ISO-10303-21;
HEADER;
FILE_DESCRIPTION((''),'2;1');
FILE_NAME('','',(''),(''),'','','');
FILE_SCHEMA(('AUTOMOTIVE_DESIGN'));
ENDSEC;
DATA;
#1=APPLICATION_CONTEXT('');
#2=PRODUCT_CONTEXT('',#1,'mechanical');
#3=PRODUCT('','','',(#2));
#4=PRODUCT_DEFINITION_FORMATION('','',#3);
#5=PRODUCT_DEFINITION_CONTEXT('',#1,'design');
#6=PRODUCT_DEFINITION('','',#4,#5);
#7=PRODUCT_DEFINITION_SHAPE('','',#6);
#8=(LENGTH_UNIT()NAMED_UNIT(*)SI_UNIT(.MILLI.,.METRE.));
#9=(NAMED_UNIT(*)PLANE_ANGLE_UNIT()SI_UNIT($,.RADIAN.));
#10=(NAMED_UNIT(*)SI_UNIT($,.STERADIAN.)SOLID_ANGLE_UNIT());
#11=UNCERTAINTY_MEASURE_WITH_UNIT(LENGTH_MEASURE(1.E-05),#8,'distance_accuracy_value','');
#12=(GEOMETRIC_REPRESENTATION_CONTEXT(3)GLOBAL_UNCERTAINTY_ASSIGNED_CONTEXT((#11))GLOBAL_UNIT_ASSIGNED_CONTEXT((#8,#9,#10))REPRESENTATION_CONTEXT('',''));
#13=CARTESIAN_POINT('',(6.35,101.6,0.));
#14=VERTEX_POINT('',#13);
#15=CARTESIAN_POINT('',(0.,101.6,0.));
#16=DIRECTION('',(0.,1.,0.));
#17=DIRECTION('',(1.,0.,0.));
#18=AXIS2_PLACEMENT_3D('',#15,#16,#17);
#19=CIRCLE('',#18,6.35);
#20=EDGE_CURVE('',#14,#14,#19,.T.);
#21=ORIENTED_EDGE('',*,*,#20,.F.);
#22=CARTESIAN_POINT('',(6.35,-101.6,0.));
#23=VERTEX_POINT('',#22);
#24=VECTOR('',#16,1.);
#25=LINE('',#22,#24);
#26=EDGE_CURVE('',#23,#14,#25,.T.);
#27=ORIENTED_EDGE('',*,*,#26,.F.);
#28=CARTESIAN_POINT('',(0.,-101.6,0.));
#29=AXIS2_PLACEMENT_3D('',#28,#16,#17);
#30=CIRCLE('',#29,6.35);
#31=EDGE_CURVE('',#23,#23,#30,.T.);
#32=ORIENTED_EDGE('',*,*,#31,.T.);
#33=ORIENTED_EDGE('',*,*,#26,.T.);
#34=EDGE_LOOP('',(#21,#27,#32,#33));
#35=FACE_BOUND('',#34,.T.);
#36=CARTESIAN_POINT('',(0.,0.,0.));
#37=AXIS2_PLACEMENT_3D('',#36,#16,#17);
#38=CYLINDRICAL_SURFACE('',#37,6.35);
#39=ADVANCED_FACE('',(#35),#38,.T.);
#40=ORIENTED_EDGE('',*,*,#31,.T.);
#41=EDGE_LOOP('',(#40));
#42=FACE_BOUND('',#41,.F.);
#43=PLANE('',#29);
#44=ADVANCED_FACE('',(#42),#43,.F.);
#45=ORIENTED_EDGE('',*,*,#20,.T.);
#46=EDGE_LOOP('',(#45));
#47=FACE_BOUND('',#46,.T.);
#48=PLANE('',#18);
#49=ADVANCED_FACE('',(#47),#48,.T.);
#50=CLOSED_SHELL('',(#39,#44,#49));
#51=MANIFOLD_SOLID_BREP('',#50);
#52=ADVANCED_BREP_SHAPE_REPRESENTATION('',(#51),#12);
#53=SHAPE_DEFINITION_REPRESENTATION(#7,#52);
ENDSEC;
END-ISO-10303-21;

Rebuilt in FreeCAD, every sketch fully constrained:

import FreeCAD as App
import Part
import Sketcher
from FreeCAD import Vector
Q = App.Units.Quantity

doc = App.newDocument("Part")
body = doc.addObject("PartDesign::Body", "Body")

sketch1 = doc.addObject("Sketcher::SketchObject", "Sketch")
body.addObject(sketch1)
sketch1.AttachmentSupport = (doc.XZ_Plane, [""])
sketch1.MapMode = "FlatFace"
sketch1.addGeometry(Part.Circle(Vector(0, 0, 0), Vector(0, 0, 1), 6), False)
sketch1.addConstraint([
    Sketcher.Constraint("Coincident", 0, 3, -1, 1),
    Sketcher.Constraint("Diameter", 0, Q("0.5 in")),
])
pad1 = doc.addObject("PartDesign::Pad", "Pad")
body.addObject(pad1)
pad1.Profile = sketch1
pad1.Length = Q("8 in")
pad1.Midplane = True

doc.recompute()
